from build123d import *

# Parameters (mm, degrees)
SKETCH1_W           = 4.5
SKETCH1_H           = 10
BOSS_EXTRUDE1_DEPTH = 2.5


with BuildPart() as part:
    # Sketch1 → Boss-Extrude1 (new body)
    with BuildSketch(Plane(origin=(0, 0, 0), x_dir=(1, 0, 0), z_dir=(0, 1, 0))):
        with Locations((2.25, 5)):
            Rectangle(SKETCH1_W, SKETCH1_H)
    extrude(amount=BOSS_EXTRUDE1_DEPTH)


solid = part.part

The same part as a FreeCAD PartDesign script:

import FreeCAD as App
import Part
import Sketcher

V = App.Vector

doc = App.newDocument("Part")
body = doc.addObject("PartDesign::Body", "Body")

# Sketch on XZ plane
sketch1 = body.newObject("Sketcher::SketchObject", "Sketch")
sketch1.AttachmentSupport = (doc.getObject("XZ_Plane"), [""])
sketch1.MapMode = "FlatFace"
sketch1.addGeometry(Part.LineSegment(V(0, -10, 0), V(0, 0, 0)), False)
sketch1.addGeometry(Part.LineSegment(V(0, 0, 0), V(4.5, 0, 0)), False)
sketch1.addGeometry(Part.LineSegment(V(4.5, 0, 0), V(4.5, -10, 0)), False)
sketch1.addGeometry(Part.LineSegment(V(4.5, -10, 0), V(0, -10, 0)), False)
sketch1.addConstraint(Sketcher.Constraint("Coincident", 0, 2, 1, 1))
sketch1.addConstraint(Sketcher.Constraint("Coincident", 1, 2, 2, 1))
sketch1.addConstraint(Sketcher.Constraint("Coincident", 2, 2, 3, 1))
sketch1.addConstraint(Sketcher.Constraint("Coincident", 3, 2, 0, 1))
sketch1.addConstraint(Sketcher.Constraint("Vertical", 0))
sketch1.addConstraint(Sketcher.Constraint("Horizontal", 1))
sketch1.addConstraint(Sketcher.Constraint("Vertical", 2))
sketch1.addConstraint(Sketcher.Constraint("Horizontal", 3))
sketch1.addConstraint(Sketcher.Constraint("Coincident", 0, 2, -1, 1))
sketch1.addConstraint(Sketcher.Constraint("DistanceY", 0, 1, 0, 2, 10.0))
sketch1.addConstraint(Sketcher.Constraint("DistanceX", 1, 1, 1, 2, 4.5))
pad1 = body.newObject("PartDesign::Pad", "Pad")
pad1.Profile = sketch1
pad1.Length = 2.5
pad1.Reversed = True

doc.recompute()
